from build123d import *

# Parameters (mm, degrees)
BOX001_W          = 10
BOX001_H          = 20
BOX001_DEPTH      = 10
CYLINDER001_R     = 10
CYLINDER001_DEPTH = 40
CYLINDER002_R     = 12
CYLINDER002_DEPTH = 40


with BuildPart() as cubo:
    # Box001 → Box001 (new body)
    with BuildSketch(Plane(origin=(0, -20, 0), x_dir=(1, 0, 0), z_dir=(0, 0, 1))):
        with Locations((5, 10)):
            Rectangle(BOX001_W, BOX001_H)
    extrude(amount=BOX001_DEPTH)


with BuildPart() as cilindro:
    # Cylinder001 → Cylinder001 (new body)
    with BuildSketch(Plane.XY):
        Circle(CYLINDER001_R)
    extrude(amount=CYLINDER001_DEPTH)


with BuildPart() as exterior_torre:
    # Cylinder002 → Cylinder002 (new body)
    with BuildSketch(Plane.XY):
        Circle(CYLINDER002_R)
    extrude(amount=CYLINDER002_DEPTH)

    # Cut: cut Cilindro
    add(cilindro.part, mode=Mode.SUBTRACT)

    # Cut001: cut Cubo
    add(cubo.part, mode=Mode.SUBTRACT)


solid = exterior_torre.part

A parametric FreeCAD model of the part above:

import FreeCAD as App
import Part
import Sketcher


def add_polygon(sketch, points):
    """Adds a closed chain of lines whose ends are joined by coincident constraints."""
    first, n = sketch.GeometryCount, len(points)
    for a, b in zip(points, points[1:] + points[:1]):
        sketch.addGeometry(Part.LineSegment(App.Vector(*a, 0), App.Vector(*b, 0)), False)
    for i in range(n):
        sketch.addConstraint(Sketcher.Constraint("Coincident", first + i, 2, first + (i + 1) % n, 1))

doc = App.newDocument("Part")
body = doc.addObject("PartDesign::Body", "Body")

sketch1 = body.newObject("Sketcher::SketchObject", "Sketch")
sketch1.AttachmentSupport = (doc.getObject("XY_Plane"), [""])
sketch1.MapMode = "FlatFace"
add_polygon(sketch1, [(0, 0), (0, -20), (10, -20), (10, 0)])
sketch1.addConstraint([
    Sketcher.Constraint("Vertical", 0),
    Sketcher.Constraint("Horizontal", 1),
    Sketcher.Constraint("Vertical", 2),
    Sketcher.Constraint("Horizontal", 3),
    Sketcher.Constraint("Coincident", 3, 2, -1, 1),
    Sketcher.Constraint("DistanceX", 1, 1, 1, 2, 10.0),
    Sketcher.Constraint("DistanceY", 0, 2, 0, 1, 20.0),
])
pad1 = body.newObject("PartDesign::Pad", "Pad")
pad1.Profile = sketch1
pad1.Length = 10
body2 = doc.addObject("PartDesign::Body", "Body001")

sketch2 = body2.newObject("Sketcher::SketchObject", "Sketch001")
sketch2.AttachmentSupport = (doc.getObject("XY_Plane001"), [""])
sketch2.MapMode = "FlatFace"
sketch2.addGeometry(Part.Circle(App.Vector(0, 0, 0), App.Vector(0, 0, 1), 10), False)
sketch2.addConstraint([
    Sketcher.Constraint("Coincident", 0, 3, -1, 1),
    Sketcher.Constraint("Diameter", 0, 20.0),
])
pad2 = body2.newObject("PartDesign::Pad", "Pad001")
pad2.Profile = sketch2
pad2.Length = 40
body3 = doc.addObject("PartDesign::Body", "Body002")

sketch3 = body3.newObject("Sketcher::SketchObject", "Sketch002")
sketch3.AttachmentSupport = (doc.getObject("XY_Plane002"), [""])
sketch3.MapMode = "FlatFace"
sketch3.addGeometry(Part.Circle(App.Vector(0, 0, 0), App.Vector(0, 0, 1), 12), False)
sketch3.addConstraint([
    Sketcher.Constraint("Coincident", 0, 3, -1, 1),
    Sketcher.Constraint("Diameter", 0, 24.0),
])
pad3 = body3.newObject("PartDesign::Pad", "Pad002")
pad3.Profile = sketch3
pad3.Length = 40
doc.recompute()

boolean = body3.newObject("PartDesign::Boolean", "Boolean")
boolean.Type = "Cut"
boolean.addObjects([body2])
doc.recompute()

boolean2 = body3.newObject("PartDesign::Boolean", "Boolean001")
boolean2.Type = "Cut"
boolean2.addObjects([body])

doc.recompute()
